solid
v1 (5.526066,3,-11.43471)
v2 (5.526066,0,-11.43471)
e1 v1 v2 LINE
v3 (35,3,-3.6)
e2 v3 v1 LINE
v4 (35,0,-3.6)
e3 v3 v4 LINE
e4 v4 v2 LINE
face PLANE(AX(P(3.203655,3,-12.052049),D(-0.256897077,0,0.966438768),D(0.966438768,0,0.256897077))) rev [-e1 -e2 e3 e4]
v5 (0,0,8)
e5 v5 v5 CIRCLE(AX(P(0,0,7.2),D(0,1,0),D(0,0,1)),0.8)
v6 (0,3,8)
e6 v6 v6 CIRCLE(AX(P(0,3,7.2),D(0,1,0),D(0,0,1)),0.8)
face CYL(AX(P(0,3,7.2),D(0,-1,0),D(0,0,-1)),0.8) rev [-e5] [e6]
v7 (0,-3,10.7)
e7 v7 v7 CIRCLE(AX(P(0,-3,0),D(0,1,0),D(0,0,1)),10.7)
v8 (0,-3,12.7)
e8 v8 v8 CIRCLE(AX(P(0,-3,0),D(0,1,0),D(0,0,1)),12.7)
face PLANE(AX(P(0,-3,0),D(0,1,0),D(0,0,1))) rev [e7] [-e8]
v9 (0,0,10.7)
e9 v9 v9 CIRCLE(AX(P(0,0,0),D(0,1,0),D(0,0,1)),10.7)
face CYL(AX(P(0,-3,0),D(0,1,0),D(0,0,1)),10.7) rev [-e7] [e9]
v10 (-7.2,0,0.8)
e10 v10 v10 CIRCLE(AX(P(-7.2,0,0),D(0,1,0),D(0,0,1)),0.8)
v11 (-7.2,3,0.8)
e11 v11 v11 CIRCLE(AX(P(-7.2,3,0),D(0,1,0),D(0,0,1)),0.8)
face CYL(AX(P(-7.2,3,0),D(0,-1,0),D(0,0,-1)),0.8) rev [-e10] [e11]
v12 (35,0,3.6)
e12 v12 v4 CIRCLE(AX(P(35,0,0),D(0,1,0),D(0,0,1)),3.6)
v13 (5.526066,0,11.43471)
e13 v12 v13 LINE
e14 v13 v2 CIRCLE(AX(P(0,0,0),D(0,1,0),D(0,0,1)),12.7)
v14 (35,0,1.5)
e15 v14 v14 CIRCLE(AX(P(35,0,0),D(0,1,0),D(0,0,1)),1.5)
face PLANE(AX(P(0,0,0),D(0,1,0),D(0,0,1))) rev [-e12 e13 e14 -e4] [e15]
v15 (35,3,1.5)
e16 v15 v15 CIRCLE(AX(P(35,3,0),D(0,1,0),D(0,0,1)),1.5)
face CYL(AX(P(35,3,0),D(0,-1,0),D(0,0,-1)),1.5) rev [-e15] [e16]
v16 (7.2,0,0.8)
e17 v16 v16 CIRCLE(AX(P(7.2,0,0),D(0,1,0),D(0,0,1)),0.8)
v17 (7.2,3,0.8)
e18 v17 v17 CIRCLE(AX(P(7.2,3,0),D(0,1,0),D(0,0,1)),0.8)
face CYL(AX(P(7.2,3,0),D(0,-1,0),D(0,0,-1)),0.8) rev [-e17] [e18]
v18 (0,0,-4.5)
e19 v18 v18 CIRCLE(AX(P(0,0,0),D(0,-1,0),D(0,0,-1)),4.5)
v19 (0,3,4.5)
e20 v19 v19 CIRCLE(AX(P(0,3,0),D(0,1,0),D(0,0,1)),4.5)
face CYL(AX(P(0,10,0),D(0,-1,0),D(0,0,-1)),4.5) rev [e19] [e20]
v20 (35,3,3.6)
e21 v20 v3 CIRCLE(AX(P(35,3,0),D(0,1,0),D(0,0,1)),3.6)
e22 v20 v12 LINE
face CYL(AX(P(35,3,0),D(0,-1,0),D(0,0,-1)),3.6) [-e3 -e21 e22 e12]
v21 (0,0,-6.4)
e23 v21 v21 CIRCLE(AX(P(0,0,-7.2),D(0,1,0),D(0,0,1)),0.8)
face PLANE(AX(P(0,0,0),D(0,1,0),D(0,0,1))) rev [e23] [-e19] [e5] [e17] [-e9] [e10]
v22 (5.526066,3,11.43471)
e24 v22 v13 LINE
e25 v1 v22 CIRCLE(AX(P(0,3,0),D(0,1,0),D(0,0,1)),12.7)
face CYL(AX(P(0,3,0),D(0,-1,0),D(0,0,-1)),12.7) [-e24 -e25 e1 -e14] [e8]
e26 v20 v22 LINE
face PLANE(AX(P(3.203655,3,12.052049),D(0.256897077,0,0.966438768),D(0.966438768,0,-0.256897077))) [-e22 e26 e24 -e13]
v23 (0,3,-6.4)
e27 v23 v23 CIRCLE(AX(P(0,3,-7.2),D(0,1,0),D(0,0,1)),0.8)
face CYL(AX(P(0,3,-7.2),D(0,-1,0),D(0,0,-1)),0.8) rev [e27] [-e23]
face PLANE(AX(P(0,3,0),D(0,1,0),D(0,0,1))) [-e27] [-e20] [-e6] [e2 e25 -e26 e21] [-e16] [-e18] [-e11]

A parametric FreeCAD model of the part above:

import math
import FreeCAD as App
import Part
import Sketcher
from FreeCAD import Vector

doc = App.newDocument("Part")
body = doc.addObject("PartDesign::Body", "Body")

# Sketch on XZ plane
sketch1 = body.newObject("Sketcher::SketchObject", "Sketch")
sketch1.AttachmentSupport = (doc.getObject("XZ_Plane"), [""])
sketch1.MapMode = "FlatFace"
sketch1.addGeometry(Part.ArcOfCircle(Part.Circle(Vector(0, 0, 0), Vector(0, 0, 1), 12.7), math.radians(64.206858), math.radians(295.793142)), False)
sketch1.addGeometry(Part.LineSegment(Vector(5.526066, 11.43471, 0), Vector(35, 3.6, 0)), False)
sketch1.addGeometry(Part.ArcOfCircle(Part.Circle(Vector(35, 0, 0), Vector(0, 0, 1), 3.6), math.radians(-90), math.radians(90)), False)
sketch1.addGeometry(Part.LineSegment(Vector(35, -3.6, 0), Vector(5.526066, -11.43471, 0)), False)
sketch1.addGeometry(Part.Circle(Vector(0, -7.2, 0), Vector(0, 0, 1), 0.8), False)
sketch1.addGeometry(Part.Circle(Vector(-7.2, 0, 0), Vector(0, 0, 1), 0.8), False)
sketch1.addGeometry(Part.Circle(Vector(0, 7.2, 0), Vector(0, 0, 1), 0.8), False)
sketch1.addGeometry(Part.Circle(Vector(0, 0, 0), Vector(0, 0, 1), 1.5), False)
sketch1.addGeometry(Part.Circle(Vector(7.2, 0, 0), Vector(0, 0, 1), 0.8), False)
sketch1.addGeometry(Part.Circle(Vector(35, 0, 0), Vector(0, 0, 1), 1.5), False)
sketch1.addConstraint(Sketcher.Constraint("Coincident", 0, 1, 1, 1))
sketch1.addConstraint(Sketcher.Constraint("Coincident", 1, 2, 2, 2))
sketch1.addConstraint(Sketcher.Constraint("Coincident", 2, 1, 3, 1))
sketch1.addConstraint(Sketcher.Constraint("Coincident", 3, 2, 0, 2))
sketch1.addConstraint(Sketcher.Constraint("Coincident", 0, 3, -1, 1))
sketch1.addConstraint(Sketcher.Constraint("Coincident", 7, 3, -1, 1))
sketch1.addConstraint(Sketcher.Constraint("Coincident", 9, 3, 2, 3))
sketch1.addConstraint(Sketcher.Constraint("Equal", 4, 5))
sketch1.addConstraint(Sketcher.Constraint("Equal", 5, 6))
sketch1.addConstraint(Sketcher.Constraint("Equal", 6, 8))
sketch1.addConstraint(Sketcher.Constraint("Equal", 7, 9))
sketch1.addConstraint(Sketcher.Constraint("Symmetric", 4, 3, 6, 3, -1, 1))
sketch1.addConstraint(Sketcher.Constraint("Symmetric", 5, 3, 8, 3, -1, 1))
sketch1.addConstraint(Sketcher.Constraint("Symmetric", 1, 2, 2, 1, -1))
sketch1.addConstraint(Sketcher.Constraint("PointOnObject", 4, 3, -2))
sketch1.addConstraint(Sketcher.Constraint("PointOnObject", 5, 3, -1))
sketch1.addConstraint(Sketcher.Constraint("Vertical", 9, 3, 1, 2))
sketch1.addConstraint(Sketcher.Constraint("Vertical", 0, 1, 3, 2))
sketch1.addConstraint(Sketcher.Constraint("Diameter", 7, 3.0))
sketch1.addConstraint(Sketcher.Constraint("Diameter", 4, 1.6))
sketch1.addConstraint(Sketcher.Constraint("Radius", 0, 12.7))
sketch1.addConstraint(Sketcher.Constraint("Radius", 2, 3.6))
sketch1.addConstraint(Sketcher.Constraint("DistanceX", -1, 1, 2, 3, 35.0))
sketch1.addConstraint(Sketcher.Constraint("DistanceY", 4, 3, -1, 1, 7.2))
sketch1.addConstraint(Sketcher.Constraint("DistanceX", 5, 3, -1, 1, 7.2))
sketch1.addConstraint(Sketcher.Constraint("DistanceY", -1, 1, 0, 1, 11.43471))
pad1 = body.newObject("PartDesign::Pad", "Pad")
pad1.Profile = sketch1
pad1.Length = 3
pad1.Reversed = True

# Sketch on XZ plane
sketch2 = body.newObject("Sketcher::SketchObject", "Sketch001")
sketch2.AttachmentSupport = (doc.getObject("XZ_Plane"), [""])
sketch2.MapMode = "FlatFace"
sketch2.AttachmentOffset = App.Placement(Vector(0, 0, 3), App.Rotation())
sketch2.addGeometry(Part.Circle(Vector(0, 0, 0), Vector(0, 0, 1), 12.7), False)
sketch2.addGeometry(Part.Circle(Vector(0, 0, 0), Vector(0, 0, 1), 10.7), False)
sketch2.addConstraint(Sketcher.Constraint("Coincident", 0, 3, -1, 1))
sketch2.addConstraint(Sketcher.Constraint("Coincident", 1, 3, -1, 1))
sketch2.addConstraint(Sketcher.Constraint("Diameter", 0, 25.4))
sketch2.addConstraint(Sketcher.Constraint("Diameter", 1, 21.4))
pad2 = body.newObject("PartDesign::Pad", "Pad001")
pad2.Profile = sketch2
pad2.Length = 3
pad2.Reversed = True

# Sketch on XZ plane
sketch3 = body.newObject("Sketcher::SketchObject", "Sketch002")
sketch3.AttachmentSupport = (doc.getObject("XZ_Plane"), [""])
sketch3.MapMode = "FlatFace"
sketch3.addGeometry(Part.Circle(Vector(0, 0, 0), Vector(0, 0, 1), 4.5), False)
sketch3.addConstraint(Sketcher.Constraint("Coincident", 0, 3, -1, 1))
sketch3.addConstraint(Sketcher.Constraint("Diameter", 0, 9.0))
pocket1 = body.newObject("PartDesign::Pocket", "Pocket")
pocket1.Profile = sketch3
pocket1.Length = 10

doc.recompute()
